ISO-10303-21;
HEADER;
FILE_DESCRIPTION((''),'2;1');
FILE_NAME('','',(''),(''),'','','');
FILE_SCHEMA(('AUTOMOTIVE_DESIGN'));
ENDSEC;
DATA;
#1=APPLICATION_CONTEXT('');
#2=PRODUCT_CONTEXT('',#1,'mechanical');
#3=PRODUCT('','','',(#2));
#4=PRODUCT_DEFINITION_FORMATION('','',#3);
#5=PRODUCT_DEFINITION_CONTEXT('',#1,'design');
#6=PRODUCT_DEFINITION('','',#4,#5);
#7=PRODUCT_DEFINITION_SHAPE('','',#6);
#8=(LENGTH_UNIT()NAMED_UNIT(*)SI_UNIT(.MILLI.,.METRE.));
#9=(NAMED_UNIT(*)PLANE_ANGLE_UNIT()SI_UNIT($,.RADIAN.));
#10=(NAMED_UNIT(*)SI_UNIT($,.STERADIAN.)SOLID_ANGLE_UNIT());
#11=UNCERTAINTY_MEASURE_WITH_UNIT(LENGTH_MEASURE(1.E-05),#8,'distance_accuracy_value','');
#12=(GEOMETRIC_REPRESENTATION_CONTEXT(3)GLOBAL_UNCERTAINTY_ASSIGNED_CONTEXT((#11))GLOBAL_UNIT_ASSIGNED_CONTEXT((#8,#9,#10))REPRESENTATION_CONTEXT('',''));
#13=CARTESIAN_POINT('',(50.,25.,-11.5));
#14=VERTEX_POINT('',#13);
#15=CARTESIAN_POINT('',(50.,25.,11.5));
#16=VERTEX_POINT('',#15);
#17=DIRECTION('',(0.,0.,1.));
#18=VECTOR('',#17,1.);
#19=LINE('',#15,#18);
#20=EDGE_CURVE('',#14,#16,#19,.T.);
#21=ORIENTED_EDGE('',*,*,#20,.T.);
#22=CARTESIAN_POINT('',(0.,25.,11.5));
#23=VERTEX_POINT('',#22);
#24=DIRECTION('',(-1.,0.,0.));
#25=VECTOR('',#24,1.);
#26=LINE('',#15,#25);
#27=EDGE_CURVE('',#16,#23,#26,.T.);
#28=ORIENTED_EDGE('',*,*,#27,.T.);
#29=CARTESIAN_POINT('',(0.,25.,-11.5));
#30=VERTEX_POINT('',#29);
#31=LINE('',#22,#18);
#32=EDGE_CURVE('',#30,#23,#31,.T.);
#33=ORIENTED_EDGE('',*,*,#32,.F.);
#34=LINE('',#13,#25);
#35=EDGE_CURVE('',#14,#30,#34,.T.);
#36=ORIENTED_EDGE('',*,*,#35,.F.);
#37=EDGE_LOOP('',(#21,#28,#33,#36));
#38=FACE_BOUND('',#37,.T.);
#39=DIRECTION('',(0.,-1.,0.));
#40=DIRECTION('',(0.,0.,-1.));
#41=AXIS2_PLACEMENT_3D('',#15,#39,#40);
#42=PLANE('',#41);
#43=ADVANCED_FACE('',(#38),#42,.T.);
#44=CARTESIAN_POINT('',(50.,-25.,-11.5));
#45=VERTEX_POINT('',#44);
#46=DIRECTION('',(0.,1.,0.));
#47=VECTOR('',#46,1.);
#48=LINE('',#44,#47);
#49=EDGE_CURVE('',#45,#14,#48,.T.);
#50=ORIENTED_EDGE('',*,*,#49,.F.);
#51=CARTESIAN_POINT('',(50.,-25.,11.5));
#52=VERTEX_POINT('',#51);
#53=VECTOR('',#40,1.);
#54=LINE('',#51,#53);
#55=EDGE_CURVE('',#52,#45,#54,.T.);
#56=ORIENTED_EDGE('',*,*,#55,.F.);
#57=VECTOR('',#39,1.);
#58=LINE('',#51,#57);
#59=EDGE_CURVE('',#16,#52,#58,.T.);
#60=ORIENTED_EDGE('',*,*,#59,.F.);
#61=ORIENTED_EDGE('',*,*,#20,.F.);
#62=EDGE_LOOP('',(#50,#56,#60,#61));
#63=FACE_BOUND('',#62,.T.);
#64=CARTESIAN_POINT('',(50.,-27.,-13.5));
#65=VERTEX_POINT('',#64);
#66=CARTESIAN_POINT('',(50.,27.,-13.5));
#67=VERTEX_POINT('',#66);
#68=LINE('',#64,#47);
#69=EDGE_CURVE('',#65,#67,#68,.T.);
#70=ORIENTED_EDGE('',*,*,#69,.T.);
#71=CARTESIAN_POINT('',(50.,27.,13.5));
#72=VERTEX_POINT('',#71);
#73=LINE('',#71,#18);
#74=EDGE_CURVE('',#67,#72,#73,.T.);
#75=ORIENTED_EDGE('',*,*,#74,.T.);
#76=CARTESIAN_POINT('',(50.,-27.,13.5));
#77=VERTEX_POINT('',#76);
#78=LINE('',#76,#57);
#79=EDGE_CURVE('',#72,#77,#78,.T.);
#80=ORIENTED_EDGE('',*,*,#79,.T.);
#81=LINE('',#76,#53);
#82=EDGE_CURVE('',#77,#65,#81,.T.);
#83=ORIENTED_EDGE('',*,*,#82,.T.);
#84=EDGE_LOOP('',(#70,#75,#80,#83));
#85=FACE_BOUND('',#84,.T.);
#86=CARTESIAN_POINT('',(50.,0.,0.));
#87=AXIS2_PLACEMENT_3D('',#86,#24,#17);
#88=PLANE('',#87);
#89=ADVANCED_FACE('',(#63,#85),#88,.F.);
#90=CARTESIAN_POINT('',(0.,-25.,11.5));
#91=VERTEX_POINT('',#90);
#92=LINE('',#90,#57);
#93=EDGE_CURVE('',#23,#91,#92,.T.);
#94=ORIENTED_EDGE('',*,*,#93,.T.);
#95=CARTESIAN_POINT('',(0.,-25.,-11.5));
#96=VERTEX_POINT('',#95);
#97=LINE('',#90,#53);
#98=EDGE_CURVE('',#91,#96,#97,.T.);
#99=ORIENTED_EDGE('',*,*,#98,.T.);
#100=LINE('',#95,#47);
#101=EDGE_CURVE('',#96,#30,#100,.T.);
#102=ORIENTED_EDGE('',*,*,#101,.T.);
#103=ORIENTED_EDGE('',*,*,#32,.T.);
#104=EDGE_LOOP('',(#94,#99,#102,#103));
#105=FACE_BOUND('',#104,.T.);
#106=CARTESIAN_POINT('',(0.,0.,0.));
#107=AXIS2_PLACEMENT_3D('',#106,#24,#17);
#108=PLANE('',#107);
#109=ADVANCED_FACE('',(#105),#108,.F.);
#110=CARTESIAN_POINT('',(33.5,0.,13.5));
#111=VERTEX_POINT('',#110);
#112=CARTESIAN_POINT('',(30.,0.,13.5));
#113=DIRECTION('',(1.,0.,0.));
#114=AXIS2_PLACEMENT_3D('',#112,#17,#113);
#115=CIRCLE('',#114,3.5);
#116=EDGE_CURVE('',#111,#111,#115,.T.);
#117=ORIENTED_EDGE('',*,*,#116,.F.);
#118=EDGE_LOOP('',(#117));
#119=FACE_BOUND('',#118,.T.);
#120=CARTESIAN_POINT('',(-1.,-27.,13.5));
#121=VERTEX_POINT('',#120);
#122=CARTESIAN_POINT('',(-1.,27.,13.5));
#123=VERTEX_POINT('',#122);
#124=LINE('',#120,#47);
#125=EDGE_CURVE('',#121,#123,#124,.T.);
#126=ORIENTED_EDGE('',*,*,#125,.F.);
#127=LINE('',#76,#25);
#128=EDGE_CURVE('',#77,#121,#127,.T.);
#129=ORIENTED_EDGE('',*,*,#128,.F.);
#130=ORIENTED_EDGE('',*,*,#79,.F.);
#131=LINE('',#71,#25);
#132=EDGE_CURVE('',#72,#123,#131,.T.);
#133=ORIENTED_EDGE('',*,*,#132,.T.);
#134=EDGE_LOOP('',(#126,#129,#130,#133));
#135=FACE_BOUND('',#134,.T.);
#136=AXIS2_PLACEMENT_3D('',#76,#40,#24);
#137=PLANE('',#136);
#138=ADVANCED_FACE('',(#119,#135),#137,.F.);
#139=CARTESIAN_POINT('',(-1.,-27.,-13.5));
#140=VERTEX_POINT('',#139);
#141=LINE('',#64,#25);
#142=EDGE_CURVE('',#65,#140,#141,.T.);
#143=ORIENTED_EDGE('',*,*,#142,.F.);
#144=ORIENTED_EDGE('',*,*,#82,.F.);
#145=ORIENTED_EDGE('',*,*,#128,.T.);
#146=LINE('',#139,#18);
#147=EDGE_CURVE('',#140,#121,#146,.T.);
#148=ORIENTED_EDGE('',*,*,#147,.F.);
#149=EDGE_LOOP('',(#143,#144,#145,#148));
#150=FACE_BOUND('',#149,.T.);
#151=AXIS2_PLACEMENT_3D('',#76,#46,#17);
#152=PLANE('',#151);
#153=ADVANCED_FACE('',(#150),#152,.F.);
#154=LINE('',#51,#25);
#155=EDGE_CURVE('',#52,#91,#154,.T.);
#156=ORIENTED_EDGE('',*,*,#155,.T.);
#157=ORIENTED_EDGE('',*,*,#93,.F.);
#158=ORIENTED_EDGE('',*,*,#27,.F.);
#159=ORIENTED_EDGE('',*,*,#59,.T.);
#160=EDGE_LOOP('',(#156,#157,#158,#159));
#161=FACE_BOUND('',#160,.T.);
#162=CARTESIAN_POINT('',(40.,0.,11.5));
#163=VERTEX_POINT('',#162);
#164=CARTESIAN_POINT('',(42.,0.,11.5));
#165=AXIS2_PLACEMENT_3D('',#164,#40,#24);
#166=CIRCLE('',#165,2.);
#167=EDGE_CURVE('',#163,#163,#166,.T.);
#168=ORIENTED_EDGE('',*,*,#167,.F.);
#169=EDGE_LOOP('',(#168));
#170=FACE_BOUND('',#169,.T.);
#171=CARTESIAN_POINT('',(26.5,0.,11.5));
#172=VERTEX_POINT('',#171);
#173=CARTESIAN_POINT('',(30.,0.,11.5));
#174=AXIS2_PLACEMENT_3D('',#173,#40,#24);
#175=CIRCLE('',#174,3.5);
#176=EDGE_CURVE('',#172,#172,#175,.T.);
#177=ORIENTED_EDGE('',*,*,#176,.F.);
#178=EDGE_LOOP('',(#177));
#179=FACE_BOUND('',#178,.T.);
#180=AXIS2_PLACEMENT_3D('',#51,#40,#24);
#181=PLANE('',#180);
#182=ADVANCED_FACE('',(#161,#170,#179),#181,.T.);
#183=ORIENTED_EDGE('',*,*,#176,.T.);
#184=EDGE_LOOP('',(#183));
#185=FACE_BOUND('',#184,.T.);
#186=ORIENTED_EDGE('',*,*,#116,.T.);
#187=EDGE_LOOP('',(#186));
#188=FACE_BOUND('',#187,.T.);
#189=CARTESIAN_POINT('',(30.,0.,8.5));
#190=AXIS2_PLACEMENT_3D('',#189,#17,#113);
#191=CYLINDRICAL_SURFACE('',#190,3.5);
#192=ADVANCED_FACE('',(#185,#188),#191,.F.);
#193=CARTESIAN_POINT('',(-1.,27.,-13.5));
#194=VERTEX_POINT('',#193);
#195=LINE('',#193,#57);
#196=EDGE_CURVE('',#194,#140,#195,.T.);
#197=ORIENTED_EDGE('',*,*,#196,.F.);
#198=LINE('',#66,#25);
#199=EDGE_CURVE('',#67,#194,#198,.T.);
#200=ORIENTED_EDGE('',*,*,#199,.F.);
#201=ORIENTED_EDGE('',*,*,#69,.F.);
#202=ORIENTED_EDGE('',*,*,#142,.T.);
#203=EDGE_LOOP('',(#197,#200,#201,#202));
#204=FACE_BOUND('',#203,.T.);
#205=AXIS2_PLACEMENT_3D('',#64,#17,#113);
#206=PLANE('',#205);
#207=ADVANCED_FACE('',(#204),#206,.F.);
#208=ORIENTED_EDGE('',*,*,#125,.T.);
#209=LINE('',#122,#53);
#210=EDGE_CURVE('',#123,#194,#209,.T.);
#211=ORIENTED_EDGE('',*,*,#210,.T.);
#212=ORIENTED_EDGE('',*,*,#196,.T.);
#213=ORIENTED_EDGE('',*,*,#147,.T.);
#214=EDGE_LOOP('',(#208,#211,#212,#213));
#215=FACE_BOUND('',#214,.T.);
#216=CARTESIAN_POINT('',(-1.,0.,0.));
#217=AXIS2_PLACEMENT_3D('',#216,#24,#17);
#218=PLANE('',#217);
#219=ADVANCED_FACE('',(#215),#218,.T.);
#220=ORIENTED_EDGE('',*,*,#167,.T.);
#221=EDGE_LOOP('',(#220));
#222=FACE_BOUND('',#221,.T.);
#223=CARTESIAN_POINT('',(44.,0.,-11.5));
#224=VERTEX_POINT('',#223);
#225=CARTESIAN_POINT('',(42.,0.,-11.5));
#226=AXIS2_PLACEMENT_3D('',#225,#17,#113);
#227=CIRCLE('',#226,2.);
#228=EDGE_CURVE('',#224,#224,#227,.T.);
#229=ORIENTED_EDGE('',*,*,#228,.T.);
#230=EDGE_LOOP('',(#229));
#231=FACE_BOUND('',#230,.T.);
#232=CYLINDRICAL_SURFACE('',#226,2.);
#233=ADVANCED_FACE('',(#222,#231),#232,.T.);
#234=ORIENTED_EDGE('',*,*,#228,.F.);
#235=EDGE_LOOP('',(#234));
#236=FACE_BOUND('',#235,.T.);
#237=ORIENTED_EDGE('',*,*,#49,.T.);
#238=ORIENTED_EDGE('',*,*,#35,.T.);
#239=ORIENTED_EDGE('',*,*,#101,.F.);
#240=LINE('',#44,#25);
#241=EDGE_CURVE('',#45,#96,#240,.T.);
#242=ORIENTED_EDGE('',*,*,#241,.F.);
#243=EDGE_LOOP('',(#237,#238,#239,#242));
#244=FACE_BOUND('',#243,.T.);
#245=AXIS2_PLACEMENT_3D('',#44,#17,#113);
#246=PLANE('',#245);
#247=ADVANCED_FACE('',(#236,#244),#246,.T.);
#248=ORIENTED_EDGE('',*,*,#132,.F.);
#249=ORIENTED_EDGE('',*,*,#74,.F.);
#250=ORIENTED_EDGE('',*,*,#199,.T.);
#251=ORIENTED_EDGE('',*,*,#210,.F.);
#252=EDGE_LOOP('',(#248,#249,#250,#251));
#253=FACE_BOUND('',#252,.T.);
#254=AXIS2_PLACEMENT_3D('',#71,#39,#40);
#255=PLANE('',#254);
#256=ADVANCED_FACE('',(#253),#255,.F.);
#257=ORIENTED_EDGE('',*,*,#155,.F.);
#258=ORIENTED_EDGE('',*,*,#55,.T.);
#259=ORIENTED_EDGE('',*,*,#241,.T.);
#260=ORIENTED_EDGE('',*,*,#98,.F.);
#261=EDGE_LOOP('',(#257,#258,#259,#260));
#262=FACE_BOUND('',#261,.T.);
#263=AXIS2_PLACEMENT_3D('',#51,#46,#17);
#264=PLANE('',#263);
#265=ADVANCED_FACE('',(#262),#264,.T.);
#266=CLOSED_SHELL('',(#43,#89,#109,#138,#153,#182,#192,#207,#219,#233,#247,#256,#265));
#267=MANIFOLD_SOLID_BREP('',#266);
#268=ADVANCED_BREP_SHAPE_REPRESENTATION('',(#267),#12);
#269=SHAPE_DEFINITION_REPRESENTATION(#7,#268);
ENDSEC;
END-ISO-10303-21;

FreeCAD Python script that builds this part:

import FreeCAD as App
import Part
import Sketcher

V = App.Vector

doc = App.newDocument("Part")
body = doc.addObject("PartDesign::Body", "Body")

# Sketch on YZ plane
sketch1 = body.newObject("Sketcher::SketchObject", "Sketch")
sketch1.AttachmentSupport = (doc.getObject("YZ_Plane"), [""])
sketch1.MapMode = "FlatFace"
sketch1.addGeometry([
    Part.LineSegment(V(27, 14, 0), V(-27, 14, 0)),  # 0
    Part.LineSegment(V(-27, 14, 0), V(-27, -14, 0)),  # 1
    Part.LineSegment(V(-27, -14, 0), V(27, -14, 0)),  # 2
    Part.LineSegment(V(27, -14, 0), V(27, 14, 0)),  # 3
    Part.LineSegment(V(-25, -12, 0), V(-25, 12, 0)),  # 4
    Part.LineSegment(V(-25, 12, 0), V(25, 12, 0)),  # 5
    Part.LineSegment(V(25, 12, 0), V(25, -12, 0)),  # 6
    Part.LineSegment(V(25, -12, 0), V(-25, -12, 0)),  # 7
], False)
sketch1.addConstraint([
    Sketcher.Constraint("Coincident", 0, 2, 1, 1),
    Sketcher.Constraint("Coincident", 1, 2, 2, 1),
    Sketcher.Constraint("Coincident", 2, 2, 3, 1),
    Sketcher.Constraint("Coincident", 3, 2, 0, 1),
    Sketcher.Constraint("Coincident", 4, 2, 5, 1),
    Sketcher.Constraint("Coincident", 5, 2, 6, 1),
    Sketcher.Constraint("Coincident", 6, 2, 7, 1),
    Sketcher.Constraint("Coincident", 7, 2, 4, 1),
    Sketcher.Constraint("Horizontal", 0),
    Sketcher.Constraint("Vertical", 1),
    Sketcher.Constraint("Horizontal", 2),
    Sketcher.Constraint("Vertical", 3),
    Sketcher.Constraint("Vertical", 4),
    Sketcher.Constraint("Horizontal", 5),
    Sketcher.Constraint("Vertical", 6),
    Sketcher.Constraint("Horizontal", 7),
    Sketcher.Constraint("Symmetric", 0, 2, 2, 2, -1, 1),
    Sketcher.Constraint("Symmetric", 4, 2, 6, 2, -1, 1),
    Sketcher.Constraint("DistanceX", 0, 2, 0, 1, 54.0),
    Sketcher.Constraint("DistanceX", 5, 1, 5, 2, 50.0),
    Sketcher.Constraint("DistanceY", 1, 2, 1, 1, 27.0),
    Sketcher.Constraint("DistanceY", 4, 1, 4, 2, 23.0),
])
pad1 = body.newObject("PartDesign::Pad", "Pad")
pad1.Profile = sketch1
pad1.Length = 50

# Sketch on XY plane
sketch2 = body.newObject("Sketcher::SketchObject", "Sketch001")
sketch2.AttachmentSupport = (doc.getObject("XY_Plane"), [""])
sketch2.MapMode = "FlatFace"
sketch2.AttachmentOffset = App.Placement(V(0, 0, 13.5), App.Rotation())
sketch2.addGeometry(Part.Circle(V(30, 0, 0), V(0, 0, 1), 3.5), False)
sketch2.addConstraint([
    Sketcher.Constraint("PointOnObject", 0, 3, -1),
    Sketcher.Constraint("Diameter", 0, 7.0),
    Sketcher.Constraint("DistanceX", -1, 1, 0, 3, 30.0),
])
pocket1 = body.newObject("PartDesign::Pocket", "Pocket")
pocket1.Profile = sketch2
pocket1.Length = 5

# Sketch on XY plane
sketch3 = body.newObject("Sketcher::SketchObject", "Sketch002")
sketch3.AttachmentSupport = (doc.getObject("XY_Plane"), [""])
sketch3.MapMode = "FlatFace"
sketch3.AttachmentOffset = App.Placement(V(0, 0, 13.5), App.Rotation())
sketch3.addGeometry(Part.Circle(V(42, 0, 0), V(0, 0, 1), 2), False)
sketch3.addConstraint([
    Sketcher.Constraint("PointOnObject", 0, 3, -1),
    Sketcher.Constraint("Diameter", 0, 4.0),
    Sketcher.Constraint("DistanceX", -1, 1, 0, 3, 42.0),
])
pad2 = body.newObject("PartDesign::Pad", "Pad001")
pad2.Profile = sketch3
pad2.Length = 25
pad2.Reversed = True

# Sketch on YZ plane
sketch4 = body.newObject("Sketcher::SketchObject", "Sketch003")
sketch4.AttachmentSupport = (doc.getObject("YZ_Plane"), [""])
sketch4.MapMode = "FlatFace"
sketch4.addGeometry([
    Part.LineSegment(V(27, -14, 0), V(-27, -14, 0)),
    Part.LineSegment(V(-27, -14, 0), V(-27, 14, 0)),
    Part.LineSegment(V(-27, 14, 0), V(27, 14, 0)),
    Part.LineSegment(V(27, 14, 0), V(27, -14, 0)),
], False)
sketch4.addConstraint([
    Sketcher.Constraint("Coincident", 0, 2, 1, 1),
    Sketcher.Constraint("Coincident", 1, 2, 2, 1),
    Sketcher.Constraint("Coincident", 2, 2, 3, 1),
    Sketcher.Constraint("Coincident", 3, 2, 0, 1),
    Sketcher.Constraint("Horizontal", 0),
    Sketcher.Constraint("Vertical", 1),
    Sketcher.Constraint("Horizontal", 2),
    Sketcher.Constraint("Vertical", 3),
    Sketcher.Constraint("Symmetric", 0, 2, 2, 2, -1, 1),
    Sketcher.Constraint("DistanceX", 0, 2, 0, 1, 54.0),
    Sketcher.Constraint("DistanceY", 1, 1, 1, 2, 27.0),
])
pad3 = body.newObject("PartDesign::Pad", "Pad002")
pad3.Profile = sketch4
pad3.Length = 1
pad3.Reversed = True

doc.recompute()
